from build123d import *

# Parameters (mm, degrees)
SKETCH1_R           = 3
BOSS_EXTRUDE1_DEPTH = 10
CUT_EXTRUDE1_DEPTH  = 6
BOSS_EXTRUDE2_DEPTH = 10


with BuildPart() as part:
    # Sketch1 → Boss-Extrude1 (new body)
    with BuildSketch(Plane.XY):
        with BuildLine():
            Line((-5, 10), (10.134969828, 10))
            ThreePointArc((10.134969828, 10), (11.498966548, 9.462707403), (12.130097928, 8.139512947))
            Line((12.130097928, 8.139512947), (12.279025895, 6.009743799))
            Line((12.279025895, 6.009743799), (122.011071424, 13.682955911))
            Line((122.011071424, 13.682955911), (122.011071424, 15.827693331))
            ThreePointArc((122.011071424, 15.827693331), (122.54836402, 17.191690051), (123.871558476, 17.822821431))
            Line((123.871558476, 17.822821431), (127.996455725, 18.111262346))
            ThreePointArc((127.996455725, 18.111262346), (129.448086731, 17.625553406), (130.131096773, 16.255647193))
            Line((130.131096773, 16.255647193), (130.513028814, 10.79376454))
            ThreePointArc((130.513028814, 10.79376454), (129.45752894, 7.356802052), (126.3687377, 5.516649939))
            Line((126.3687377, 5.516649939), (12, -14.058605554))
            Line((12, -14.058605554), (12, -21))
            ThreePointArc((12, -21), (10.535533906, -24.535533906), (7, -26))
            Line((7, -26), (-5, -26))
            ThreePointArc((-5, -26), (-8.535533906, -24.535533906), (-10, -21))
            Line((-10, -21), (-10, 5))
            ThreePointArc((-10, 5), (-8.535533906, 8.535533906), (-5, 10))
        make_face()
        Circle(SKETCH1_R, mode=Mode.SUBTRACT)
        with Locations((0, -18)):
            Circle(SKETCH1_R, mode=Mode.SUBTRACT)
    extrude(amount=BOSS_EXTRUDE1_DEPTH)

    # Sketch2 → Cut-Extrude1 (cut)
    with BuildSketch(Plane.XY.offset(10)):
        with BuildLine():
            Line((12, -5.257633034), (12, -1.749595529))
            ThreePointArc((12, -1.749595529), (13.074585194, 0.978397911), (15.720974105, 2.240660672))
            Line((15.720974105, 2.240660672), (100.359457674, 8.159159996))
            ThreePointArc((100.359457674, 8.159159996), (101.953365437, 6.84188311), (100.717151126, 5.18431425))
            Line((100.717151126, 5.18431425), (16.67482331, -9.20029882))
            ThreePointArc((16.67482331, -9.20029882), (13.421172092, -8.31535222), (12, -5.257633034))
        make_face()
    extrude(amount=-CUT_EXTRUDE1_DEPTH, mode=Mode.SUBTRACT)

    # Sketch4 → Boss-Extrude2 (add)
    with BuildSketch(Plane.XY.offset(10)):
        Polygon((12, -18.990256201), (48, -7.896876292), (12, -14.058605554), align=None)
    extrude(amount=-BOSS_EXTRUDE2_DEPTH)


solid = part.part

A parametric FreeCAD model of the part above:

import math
import FreeCAD as App
import Part
import Sketcher
from FreeCAD import Vector
Q = App.Units.Quantity

doc = App.newDocument("Part")
params = doc.addObject("Spreadsheet::Sheet", "Params")
for row, (alias, value) in enumerate([
    ("sketch1_diameter", "6 mm"),
    ("sketch1_radius", "5 mm"),
    ("sketch1_radius2", "2 mm"),
    ("sketch1_width", "12 mm"),
    ("sketch1_height", "26 mm"),
    ("pad1_length", "10 mm"),
    ("sketch2_radius", "4 mm"),
    ("sketch2_radius2", "4 mm"),
    ("sketch2_radius3", "1.5 mm"),
    ("pocket1_length", "6 mm"),
    ("pad2_length", "10 mm"),
], start=1):
    params.set(f"A{row}", alias)
    params.set(f"B{row}", "=" + value)
    params.setAlias(f"B{row}", alias)

body = doc.addObject("PartDesign::Body", "Body")

sketch1 = body.newObject("Sketcher::SketchObject", "Sketch")
sketch1.AttachmentSupport = (doc.getObject("XY_Plane"), [""])
sketch1.MapMode = "FlatFace"
sketch1.addGeometry(Part.LineSegment(Vector(10.1, 10, 0), Vector(-5, 10, 0)), False)
sketch1.addGeometry(Part.ArcOfCircle(Part.Circle(Vector(-5, 5, 0), Vector(0, 0, 1), 5), math.radians(90), math.radians(180)), False)
sketch1.addGeometry(Part.LineSegment(Vector(-10, 5, 0), Vector(-10, -21, 0)), False)
sketch1.addGeometry(Part.ArcOfCircle(Part.Circle(Vector(-5, -21, 0), Vector(0, 0, 1), 5), math.radians(180), math.radians(270)), False)
sketch1.addGeometry(Part.LineSegment(Vector(-5, -26, 0), Vector(7, -26, 0)), False)
sketch1.addGeometry(Part.ArcOfCircle(Part.Circle(Vector(7, -21, 0), Vector(0, 0, 1), 5), math.radians(-90), math.radians(0)), False)
sketch1.addGeometry(Part.LineSegment(Vector(12, -21, 0), Vector(12, -14.1, 0)), False)
sketch1.addGeometry(Part.LineSegment(Vector(12, -14.1, 0), Vector(126.4, 5.5, 0)), False)
sketch1.addGeometry(Part.ArcOfCircle(Part.Circle(Vector(125.5, 10.4, 0), Vector(0, 0, 1), 5), math.radians(-80), math.radians(4)), False)
sketch1.addGeometry(Part.LineSegment(Vector(130.5, 10.8, 0), Vector(130.1, 16.3, 0)), False)
sketch1.addGeometry(Part.ArcOfCircle(Part.Circle(Vector(128.1, 16.1, 0), Vector(0, 0, 1), 2), math.radians(4), math.radians(94)), False)
sketch1.addGeometry(Part.LineSegment(Vector(128, 18.1, 0), Vector(123.9, 17.8, 0)), False)
sketch1.addGeometry(Part.ArcOfCircle(Part.Circle(Vector(124, 15.8, 0), Vector(0, 0, 1), 2), math.radians(94), math.radians(180)), False)
sketch1.addGeometry(Part.LineSegment(Vector(122, 15.8, 0), Vector(122, 13.7, 0)), False)
sketch1.addGeometry(Part.LineSegment(Vector(122, 13.7, 0), Vector(12.3, 6, 0)), False)
sketch1.addGeometry(Part.LineSegment(Vector(12.3, 6, 0), Vector(12.1, 8.1, 0)), False)
sketch1.addGeometry(Part.ArcOfCircle(Part.Circle(Vector(10.1, 8, 0), Vector(0, 0, 1), 2), math.radians(4), math.radians(90)), False)
sketch1.addGeometry(Part.Circle(Vector(0, -18, 0), Vector(0, 0, 1), 3), False)
sketch1.addGeometry(Part.Circle(Vector(0, 0, 0), Vector(0, 0, 1), 3), False)
sketch1.addConstraint(Sketcher.Constraint("Tangent", 0, 2, 1, 1))
sketch1.addConstraint(Sketcher.Constraint("Tangent", 1, 2, 2, 1))
sketch1.addConstraint(Sketcher.Constraint("Tangent", 2, 2, 3, 1))
sketch1.addConstraint(Sketcher.Constraint("Tangent", 3, 2, 4, 1))
sketch1.addConstraint(Sketcher.Constraint("Tangent", 4, 2, 5, 1))
sketch1.addConstraint(Sketcher.Constraint("Tangent", 5, 2, 6, 1))
sketch1.addConstraint(Sketcher.Constraint("Coincident", 6, 2, 7, 1))
sketch1.addConstraint(Sketcher.Constraint("Tangent", 7, 2, 8, 1))
sketch1.addConstraint(Sketcher.Constraint("Tangent", 8, 2, 9, 1))
sketch1.addConstraint(Sketcher.Constraint("Tangent", 9, 2, 10, 1))
sketch1.addConstraint(Sketcher.Constraint("Tangent", 10, 2, 11, 1))
sketch1.addConstraint(Sketcher.Constraint("Tangent", 11, 2, 12, 1))
sketch1.addConstraint(Sketcher.Constraint("Tangent", 12, 2, 13, 1))
sketch1.addConstraint(Sketcher.Constraint("Coincident", 13, 2, 14, 1))
sketch1.addConstraint(Sketcher.Constraint("Coincident", 14, 2, 15, 1))
sketch1.addConstraint(Sketcher.Constraint("Tangent", 15, 2, 16, 1))
sketch1.addConstraint(Sketcher.Constraint("Tangent", 16, 2, 0, 1))
sketch1.addConstraint(Sketcher.Constraint("Horizontal", 0))
sketch1.addConstraint(Sketcher.Constraint("Vertical", 2))
sketch1.addConstraint(Sketcher.Constraint("Horizontal", 4))
sketch1.addConstraint(Sketcher.Constraint("Vertical", 6))
sketch1.addConstraint(Sketcher.Constraint("Vertical", 13))
sketch1.addConstraint(Sketcher.Constraint("Coincident", 18, 3, -1, 1))
sketch1.addConstraint(Sketcher.Constraint("Equal", 1, 3))
sketch1.addConstraint(Sketcher.Constraint("Equal", 3, 5))
sketch1.addConstraint(Sketcher.Constraint("Equal", 5, 8))
sketch1.addConstraint(Sketcher.Constraint("Equal", 10, 12))
sketch1.addConstraint(Sketcher.Constraint("Equal", 12, 16))
sketch1.addConstraint(Sketcher.Constraint("Equal", 17, 18))
sketch1.addConstraint(Sketcher.Constraint("PointOnObject", 17, 3, -2))
sketch1.addConstraint(Sketcher.Constraint("Perpendicular", 9, 11))
sketch1.addConstraint(Sketcher.Constraint("Parallel", 11, 14))
sketch1.addConstraint(Sketcher.Constraint("Perpendicular", 14, 15))
sketch1.addConstraint(Sketcher.Constraint("Diameter", 17, Q("6 mm")))
sketch1.addConstraint(Sketcher.Constraint("Radius", 1, Q("5 mm")))
sketch1.addConstraint(Sketcher.Constraint("Radius", 10, Q("2 mm")))
sketch1.addConstraint(Sketcher.Constraint("DistanceX", 4, 1, 4, 2, Q("12 mm")))
sketch1.addConstraint(Sketcher.Constraint("DistanceY", 2, 2, 2, 1, Q("26 mm")))
sketch1.addConstraint(Sketcher.Constraint("Angle", 9, Q("94 deg")))
sketch1.addConstraint(Sketcher.Constraint("Distance", 14, Q("110 mm")))
sketch1.addConstraint(Sketcher.Constraint("DistanceX", 1, 3, -1, 1, Q("5 mm")))
sketch1.addConstraint(Sketcher.Constraint("DistanceY", -1, 1, 1, 3, Q("5 mm")))
sketch1.addConstraint(Sketcher.Constraint("DistanceY", 17, 3, -1, 1, Q("18 mm")))
sketch1.addConstraint(Sketcher.Constraint("DistanceX", 0, 2, 0, 1, Q("15.13497 mm")))
sketch1.addConstraint(Sketcher.Constraint("DistanceX", 16, 3, 12, 3, Q("113.876102 mm")))
sketch1.addConstraint(Sketcher.Constraint("Distance", 9, Q("5.47522 mm")))
sketch1.addConstraint(Sketcher.Constraint("Distance", 11, Q("4.13497 mm")))
sketch1.addConstraint(Sketcher.Constraint("DistanceY", 6, 1, 6, 2, Q("6.941394 mm")))
sketch1.addConstraint(Sketcher.Constraint("DistanceY", 13, 2, 13, 1, Q("2.144737 mm")))
sketch1.setExpression("Constraints[33]", "Params.sketch1_diameter")
sketch1.setExpression("Constraints[34]", "Params.sketch1_radius")
sketch1.setExpression("Constraints[35]", "Params.sketch1_radius2")
sketch1.setExpression("Constraints[36]", "Params.sketch1_width")
sketch1.setExpression("Constraints[37]", "Params.sketch1_height")
pad1 = body.newObject("PartDesign::Pad", "Pad")
pad1.Profile = sketch1
pad1.setExpression("Length", "Params.pad1_length")

sketch2 = body.newObject("Sketcher::SketchObject", "Sketch001")
sketch2.AttachmentSupport = (doc.getObject("XY_Plane"), [""])
sketch2.MapMode = "FlatFace"
sketch2.AttachmentOffset = App.Placement(Vector(0, 0, 10), App.Rotation())
sketch2.addGeometry(Part.LineSegment(Vector(12, -1.749596, 0), Vector(12, -5.257633, 0)), False)
sketch2.addGeometry(Part.ArcOfCircle(Part.Circle(Vector(16, -5.257633, 0), Vector(0, 0, 1), 4), math.radians(180), math.radians(279.712582)), False)
sketch2.addGeometry(Part.LineSegment(Vector(16.674823, -9.200299, 0), Vector(100.717151, 5.184314, 0)), False)
sketch2.addGeometry(Part.ArcOfCircle(Part.Circle(Vector(100.464092, 6.662814, 0), Vector(0, 0, 1), 1.5), math.radians(-80.287418), math.radians(94)), False)
sketch2.addGeometry(Part.LineSegment(Vector(100.359458, 8.15916, 0), Vector(15.720974, 2.240661, 0)), False)
sketch2.addGeometry(Part.ArcOfCircle(Part.Circle(Vector(16, -1.749596, 0), Vector(0, 0, 1), 4), math.radians(94), math.radians(180)), False)
sketch2.addConstraint(Sketcher.Constraint("Coincident", 0, 2, 1, 1))
sketch2.addConstraint(Sketcher.Constraint("Coincident", 1, 2, 2, 1))
sketch2.addConstraint(Sketcher.Constraint("Coincident", 2, 2, 3, 1))
sketch2.addConstraint(Sketcher.Constraint("Coincident", 3, 2, 4, 1))
sketch2.addConstraint(Sketcher.Constraint("Coincident", 4, 2, 5, 1))
sketch2.addConstraint(Sketcher.Constraint("Coincident", 5, 2, 0, 1))
sketch2.addConstraint(Sketcher.Constraint("Vertical", 0))
sketch2.addConstraint(Sketcher.Constraint("Radius", 1, Q("4 mm")))
sketch2.addConstraint(Sketcher.Constraint("Radius", 5, Q("4 mm")))
sketch2.addConstraint(Sketcher.Constraint("Radius", 3, Q("1.5 mm")))
sketch2.addConstraint(Sketcher.Constraint("DistanceX", -1, 1, 1, 3, Q("16 mm")))
sketch2.addConstraint(Sketcher.Constraint("DistanceY", 1, 2, -1, 1, Q("9.200299 mm")))
sketch2.addConstraint(Sketcher.Constraint("DistanceY", 2, 2, 3, 3, Q("1.4785 mm")))
sketch2.addConstraint(Sketcher.Constraint("DistanceY", 4, 2, 3, 2, Q("5.918499 mm")))
sketch2.addConstraint(Sketcher.Constraint("Distance", 2, Q("85.264471 mm")))
sketch2.addConstraint(Sketcher.Constraint("DistanceY", 0, 2, 0, 1, Q("3.508038 mm")))
sketch2.addConstraint(Sketcher.Constraint("DistanceX", -1, 1, 2, 2, Q("100.717151 mm")))
sketch2.addConstraint(Sketcher.Constraint("DistanceY", -1, 1, 3, 2, Q("8.15916 mm")))
sketch2.addConstraint(Sketcher.Constraint("DistanceY", 5, 3, 3, 3, Q("8.412409 mm")))
sketch2.addConstraint(Sketcher.Constraint("DistanceX", 4, 2, 1, 2, Q("0.953849 mm")))
sketch2.addConstraint(Sketcher.Constraint("DistanceY", 0, 2, -1, 1, Q("5.257633 mm")))
sketch2.setExpression("Constraints[7]", "Params.sketch2_radius")
sketch2.setExpression("Constraints[8]", "Params.sketch2_radius2")
sketch2.setExpression("Constraints[9]", "Params.sketch2_radius3")
pocket1 = body.newObject("PartDesign::Pocket", "Pocket")
pocket1.Profile = sketch2
pocket1.setExpression("Length", "Params.pocket1_length")

sketch3 = body.newObject("Sketcher::SketchObject", "Sketch002")
sketch3.AttachmentSupport = (doc.getObject("XY_Plane"), [""])
sketch3.MapMode = "FlatFace"
sketch3.AttachmentOffset = App.Placement(Vector(0, 0, 10), App.Rotation())
sketch3.addGeometry(Part.LineSegment(Vector(12, -19, 0), Vector(48, -7.9, 0)), False)
sketch3.addGeometry(Part.LineSegment(Vector(48, -7.9, 0), Vector(12, -14.1, 0)), False)
sketch3.addGeometry(Part.LineSegment(Vector(12, -14.1, 0), Vector(12, -19, 0)), False)
sketch3.addConstraint(Sketcher.Constraint("Coincident", 0, 2, 1, 1))
sketch3.addConstraint(Sketcher.Constraint("Coincident", 1, 2, 2, 1))
sketch3.addConstraint(Sketcher.Constraint("Coincident", 2, 2, 0, 1))
sketch3.addConstraint(Sketcher.Constraint("Vertical", 2))
sketch3.addConstraint(Sketcher.Constraint("DistanceX", -1, 1, 0, 2, Q("48 mm")))
sketch3.addConstraint(Sketcher.Constraint("DistanceX", -1, 1, 1, 2, Q("12 mm")))
sketch3.addConstraint(Sketcher.Constraint("DistanceY", 2, 2, 2, 1, Q("4.931651 mm")))
sketch3.addConstraint(Sketcher.Constraint("Distance", 1, Q("36.523512 mm")))
sketch3.addConstraint(Sketcher.Constraint("DistanceY", 0, 2, -1, 1, Q("7.896876 mm")))
pad2 = body.newObject("PartDesign::Pad", "Pad001")
pad2.Profile = sketch3
pad2.setExpression("Length", "Params.pad2_length")
pad2.Reversed = True

doc.recompute()
